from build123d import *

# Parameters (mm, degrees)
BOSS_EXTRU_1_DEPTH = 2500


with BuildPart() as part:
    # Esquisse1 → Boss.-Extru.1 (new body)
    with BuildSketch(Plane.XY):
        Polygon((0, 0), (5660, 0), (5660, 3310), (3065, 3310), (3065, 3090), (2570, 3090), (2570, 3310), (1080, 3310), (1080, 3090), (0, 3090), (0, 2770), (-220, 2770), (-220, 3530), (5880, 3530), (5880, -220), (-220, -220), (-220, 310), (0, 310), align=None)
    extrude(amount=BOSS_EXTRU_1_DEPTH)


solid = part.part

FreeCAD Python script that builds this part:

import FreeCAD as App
import Part
import Sketcher

doc = App.newDocument("Part")
params = doc.addObject("Spreadsheet::Sheet", "Params")
for row, (alias, value) in enumerate([
    ("sketch1_width", "5660 mm"),
    ("sketch1_width2", "220 mm"),
    ("sketch1_width3", "6100 mm"),
    ("sketch1_width4", "1080 mm"),
    ("sketch1_width5", "1490 mm"),
    ("pad1_length", "2500 mm"),
], start=1):
    params.set(f"A{row}", alias)
    params.set(f"B{row}", "=" + value)
    params.setAlias(f"B{row}", alias)

body = doc.addObject("PartDesign::Body", "Body")

sketch1 = body.newObject("Sketcher::SketchObject", "Sketch")
sketch1.AttachmentSupport = (doc.getObject("XY_Plane"), [""])
sketch1.MapMode = "FlatFace"
sketch1.addGeometry([
    Part.LineSegment(App.Vector(5660, 0, 0), App.Vector(0, 0, 0)),
    Part.LineSegment(App.Vector(0, 0, 0), App.Vector(0, 310, 0)),
    Part.LineSegment(App.Vector(0, 310, 0), App.Vector(-220, 310, 0)),
    Part.LineSegment(App.Vector(-220, 310, 0), App.Vector(-220, -220, 0)),
    Part.LineSegment(App.Vector(-220, -220, 0), App.Vector(5880, -220, 0)),
    Part.LineSegment(App.Vector(5880, -220, 0), App.Vector(5880, 3530, 0)),
    Part.LineSegment(App.Vector(5880, 3530, 0), App.Vector(-220, 3530, 0)),
    Part.LineSegment(App.Vector(-220, 3530, 0), App.Vector(-220, 2770, 0)),
    Part.LineSegment(App.Vector(-220, 2770, 0), App.Vector(0, 2770, 0)),
    Part.LineSegment(App.Vector(0, 2770, 0), App.Vector(0, 3090, 0)),
    Part.LineSegment(App.Vector(0, 3090, 0), App.Vector(1080, 3090, 0)),
    Part.LineSegment(App.Vector(1080, 3090, 0), App.Vector(1080, 3310, 0)),
    Part.LineSegment(App.Vector(1080, 3310, 0), App.Vector(2570, 3310, 0)),
    Part.LineSegment(App.Vector(2570, 3310, 0), App.Vector(2570, 3090, 0)),
    Part.LineSegment(App.Vector(2570, 3090, 0), App.Vector(3065, 3090, 0)),
    Part.LineSegment(App.Vector(3065, 3090, 0), App.Vector(3065, 3310, 0)),
    Part.LineSegment(App.Vector(3065, 3310, 0), App.Vector(5660, 3310, 0)),
    Part.LineSegment(App.Vector(5660, 3310, 0), App.Vector(5660, 0, 0)),
], False)
sketch1.addConstraint([
    Sketcher.Constraint("Coincident", 0, 2, 1, 1),
    Sketcher.Constraint("Coincident", 1, 2, 2, 1),
    Sketcher.Constraint("Coincident", 2, 2, 3, 1),
    Sketcher.Constraint("Coincident", 3, 2, 4, 1),
    Sketcher.Constraint("Coincident", 4, 2, 5, 1),
    Sketcher.Constraint("Coincident", 5, 2, 6, 1),
    Sketcher.Constraint("Coincident", 6, 2, 7, 1),
    Sketcher.Constraint("Coincident", 7, 2, 8, 1),
    Sketcher.Constraint("Coincident", 8, 2, 9, 1),
    Sketcher.Constraint("Coincident", 9, 2, 10, 1),
    Sketcher.Constraint("Coincident", 10, 2, 11, 1),
    Sketcher.Constraint("Coincident", 11, 2, 12, 1),
    Sketcher.Constraint("Coincident", 12, 2, 13, 1),
    Sketcher.Constraint("Coincident", 13, 2, 14, 1),
    Sketcher.Constraint("Coincident", 14, 2, 15, 1),
    Sketcher.Constraint("Coincident", 15, 2, 16, 1),
    Sketcher.Constraint("Coincident", 16, 2, 17, 1),
    Sketcher.Constraint("Coincident", 17, 2, 0, 1),
    Sketcher.Constraint("Horizontal", 0),
    Sketcher.Constraint("Vertical", 1),
    Sketcher.Constraint("Horizontal", 2),
    Sketcher.Constraint("Vertical", 3),
    Sketcher.Constraint("Horizontal", 4),
    Sketcher.Constraint("Vertical", 5),
    Sketcher.Constraint("Horizontal", 6),
    Sketcher.Constraint("Vertical", 7),
    Sketcher.Constraint("Horizontal", 8),
    Sketcher.Constraint("Vertical", 9),
    Sketcher.Constraint("Horizontal", 10),
    Sketcher.Constraint("Vertical", 11),
    Sketcher.Constraint("Horizontal", 12),
    Sketcher.Constraint("Vertical", 13),
    Sketcher.Constraint("Horizontal", 14),
    Sketcher.Constraint("Vertical", 15),
    Sketcher.Constraint("Horizontal", 16),
    Sketcher.Constraint("Vertical", 17),
    Sketcher.Constraint("Coincident", 0, 2, -1, 1),
    Sketcher.Constraint("PointOnObject", 8, 2, -2),
    Sketcher.Constraint("Horizontal", 10, 2, 13, 2),
    Sketcher.Constraint("Horizontal", 12, 2, 15, 2),
    Sketcher.Constraint("Vertical", 3, 2, 6, 2),
    Sketcher.Constraint("Equal", 8, 11),
    Sketcher.Constraint("DistanceX", 0, 2, 0, 1, 5660.0),
    Sketcher.Constraint("DistanceX", 2, 2, 2, 1, 220.0),
    Sketcher.Constraint("DistanceX", 4, 1, 4, 2, 6100.0),
    Sketcher.Constraint("DistanceX", 10, 1, 10, 2, 1080.0),
    Sketcher.Constraint("DistanceX", 12, 1, 12, 2, 1490.0),
    Sketcher.Constraint("DistanceX", 14, 1, 14, 2, 495.0),
    Sketcher.Constraint("DistanceY", 1, 1, 1, 2, 310.0),
    Sketcher.Constraint("DistanceY", 3, 2, 3, 1, 530.0),
    Sketcher.Constraint("DistanceY", 5, 1, 5, 2, 3750.0),
    Sketcher.Constraint("DistanceY", 7, 2, 7, 1, 760.0),
    Sketcher.Constraint("DistanceY", 9, 1, 9, 2, 320.0),
])
sketch1.setExpression("Constraints[42]", "Params.sketch1_width")
sketch1.setExpression("Constraints[43]", "Params.sketch1_width2")
sketch1.setExpression("Constraints[44]", "Params.sketch1_width3")
sketch1.setExpression("Constraints[45]", "Params.sketch1_width4")
sketch1.setExpression("Constraints[46]", "Params.sketch1_width5")
pad1 = body.newObject("PartDesign::Pad", "Pad")
pad1.Profile = sketch1
pad1.setExpression("Length", "Params.pad1_length")

doc.recompute()
